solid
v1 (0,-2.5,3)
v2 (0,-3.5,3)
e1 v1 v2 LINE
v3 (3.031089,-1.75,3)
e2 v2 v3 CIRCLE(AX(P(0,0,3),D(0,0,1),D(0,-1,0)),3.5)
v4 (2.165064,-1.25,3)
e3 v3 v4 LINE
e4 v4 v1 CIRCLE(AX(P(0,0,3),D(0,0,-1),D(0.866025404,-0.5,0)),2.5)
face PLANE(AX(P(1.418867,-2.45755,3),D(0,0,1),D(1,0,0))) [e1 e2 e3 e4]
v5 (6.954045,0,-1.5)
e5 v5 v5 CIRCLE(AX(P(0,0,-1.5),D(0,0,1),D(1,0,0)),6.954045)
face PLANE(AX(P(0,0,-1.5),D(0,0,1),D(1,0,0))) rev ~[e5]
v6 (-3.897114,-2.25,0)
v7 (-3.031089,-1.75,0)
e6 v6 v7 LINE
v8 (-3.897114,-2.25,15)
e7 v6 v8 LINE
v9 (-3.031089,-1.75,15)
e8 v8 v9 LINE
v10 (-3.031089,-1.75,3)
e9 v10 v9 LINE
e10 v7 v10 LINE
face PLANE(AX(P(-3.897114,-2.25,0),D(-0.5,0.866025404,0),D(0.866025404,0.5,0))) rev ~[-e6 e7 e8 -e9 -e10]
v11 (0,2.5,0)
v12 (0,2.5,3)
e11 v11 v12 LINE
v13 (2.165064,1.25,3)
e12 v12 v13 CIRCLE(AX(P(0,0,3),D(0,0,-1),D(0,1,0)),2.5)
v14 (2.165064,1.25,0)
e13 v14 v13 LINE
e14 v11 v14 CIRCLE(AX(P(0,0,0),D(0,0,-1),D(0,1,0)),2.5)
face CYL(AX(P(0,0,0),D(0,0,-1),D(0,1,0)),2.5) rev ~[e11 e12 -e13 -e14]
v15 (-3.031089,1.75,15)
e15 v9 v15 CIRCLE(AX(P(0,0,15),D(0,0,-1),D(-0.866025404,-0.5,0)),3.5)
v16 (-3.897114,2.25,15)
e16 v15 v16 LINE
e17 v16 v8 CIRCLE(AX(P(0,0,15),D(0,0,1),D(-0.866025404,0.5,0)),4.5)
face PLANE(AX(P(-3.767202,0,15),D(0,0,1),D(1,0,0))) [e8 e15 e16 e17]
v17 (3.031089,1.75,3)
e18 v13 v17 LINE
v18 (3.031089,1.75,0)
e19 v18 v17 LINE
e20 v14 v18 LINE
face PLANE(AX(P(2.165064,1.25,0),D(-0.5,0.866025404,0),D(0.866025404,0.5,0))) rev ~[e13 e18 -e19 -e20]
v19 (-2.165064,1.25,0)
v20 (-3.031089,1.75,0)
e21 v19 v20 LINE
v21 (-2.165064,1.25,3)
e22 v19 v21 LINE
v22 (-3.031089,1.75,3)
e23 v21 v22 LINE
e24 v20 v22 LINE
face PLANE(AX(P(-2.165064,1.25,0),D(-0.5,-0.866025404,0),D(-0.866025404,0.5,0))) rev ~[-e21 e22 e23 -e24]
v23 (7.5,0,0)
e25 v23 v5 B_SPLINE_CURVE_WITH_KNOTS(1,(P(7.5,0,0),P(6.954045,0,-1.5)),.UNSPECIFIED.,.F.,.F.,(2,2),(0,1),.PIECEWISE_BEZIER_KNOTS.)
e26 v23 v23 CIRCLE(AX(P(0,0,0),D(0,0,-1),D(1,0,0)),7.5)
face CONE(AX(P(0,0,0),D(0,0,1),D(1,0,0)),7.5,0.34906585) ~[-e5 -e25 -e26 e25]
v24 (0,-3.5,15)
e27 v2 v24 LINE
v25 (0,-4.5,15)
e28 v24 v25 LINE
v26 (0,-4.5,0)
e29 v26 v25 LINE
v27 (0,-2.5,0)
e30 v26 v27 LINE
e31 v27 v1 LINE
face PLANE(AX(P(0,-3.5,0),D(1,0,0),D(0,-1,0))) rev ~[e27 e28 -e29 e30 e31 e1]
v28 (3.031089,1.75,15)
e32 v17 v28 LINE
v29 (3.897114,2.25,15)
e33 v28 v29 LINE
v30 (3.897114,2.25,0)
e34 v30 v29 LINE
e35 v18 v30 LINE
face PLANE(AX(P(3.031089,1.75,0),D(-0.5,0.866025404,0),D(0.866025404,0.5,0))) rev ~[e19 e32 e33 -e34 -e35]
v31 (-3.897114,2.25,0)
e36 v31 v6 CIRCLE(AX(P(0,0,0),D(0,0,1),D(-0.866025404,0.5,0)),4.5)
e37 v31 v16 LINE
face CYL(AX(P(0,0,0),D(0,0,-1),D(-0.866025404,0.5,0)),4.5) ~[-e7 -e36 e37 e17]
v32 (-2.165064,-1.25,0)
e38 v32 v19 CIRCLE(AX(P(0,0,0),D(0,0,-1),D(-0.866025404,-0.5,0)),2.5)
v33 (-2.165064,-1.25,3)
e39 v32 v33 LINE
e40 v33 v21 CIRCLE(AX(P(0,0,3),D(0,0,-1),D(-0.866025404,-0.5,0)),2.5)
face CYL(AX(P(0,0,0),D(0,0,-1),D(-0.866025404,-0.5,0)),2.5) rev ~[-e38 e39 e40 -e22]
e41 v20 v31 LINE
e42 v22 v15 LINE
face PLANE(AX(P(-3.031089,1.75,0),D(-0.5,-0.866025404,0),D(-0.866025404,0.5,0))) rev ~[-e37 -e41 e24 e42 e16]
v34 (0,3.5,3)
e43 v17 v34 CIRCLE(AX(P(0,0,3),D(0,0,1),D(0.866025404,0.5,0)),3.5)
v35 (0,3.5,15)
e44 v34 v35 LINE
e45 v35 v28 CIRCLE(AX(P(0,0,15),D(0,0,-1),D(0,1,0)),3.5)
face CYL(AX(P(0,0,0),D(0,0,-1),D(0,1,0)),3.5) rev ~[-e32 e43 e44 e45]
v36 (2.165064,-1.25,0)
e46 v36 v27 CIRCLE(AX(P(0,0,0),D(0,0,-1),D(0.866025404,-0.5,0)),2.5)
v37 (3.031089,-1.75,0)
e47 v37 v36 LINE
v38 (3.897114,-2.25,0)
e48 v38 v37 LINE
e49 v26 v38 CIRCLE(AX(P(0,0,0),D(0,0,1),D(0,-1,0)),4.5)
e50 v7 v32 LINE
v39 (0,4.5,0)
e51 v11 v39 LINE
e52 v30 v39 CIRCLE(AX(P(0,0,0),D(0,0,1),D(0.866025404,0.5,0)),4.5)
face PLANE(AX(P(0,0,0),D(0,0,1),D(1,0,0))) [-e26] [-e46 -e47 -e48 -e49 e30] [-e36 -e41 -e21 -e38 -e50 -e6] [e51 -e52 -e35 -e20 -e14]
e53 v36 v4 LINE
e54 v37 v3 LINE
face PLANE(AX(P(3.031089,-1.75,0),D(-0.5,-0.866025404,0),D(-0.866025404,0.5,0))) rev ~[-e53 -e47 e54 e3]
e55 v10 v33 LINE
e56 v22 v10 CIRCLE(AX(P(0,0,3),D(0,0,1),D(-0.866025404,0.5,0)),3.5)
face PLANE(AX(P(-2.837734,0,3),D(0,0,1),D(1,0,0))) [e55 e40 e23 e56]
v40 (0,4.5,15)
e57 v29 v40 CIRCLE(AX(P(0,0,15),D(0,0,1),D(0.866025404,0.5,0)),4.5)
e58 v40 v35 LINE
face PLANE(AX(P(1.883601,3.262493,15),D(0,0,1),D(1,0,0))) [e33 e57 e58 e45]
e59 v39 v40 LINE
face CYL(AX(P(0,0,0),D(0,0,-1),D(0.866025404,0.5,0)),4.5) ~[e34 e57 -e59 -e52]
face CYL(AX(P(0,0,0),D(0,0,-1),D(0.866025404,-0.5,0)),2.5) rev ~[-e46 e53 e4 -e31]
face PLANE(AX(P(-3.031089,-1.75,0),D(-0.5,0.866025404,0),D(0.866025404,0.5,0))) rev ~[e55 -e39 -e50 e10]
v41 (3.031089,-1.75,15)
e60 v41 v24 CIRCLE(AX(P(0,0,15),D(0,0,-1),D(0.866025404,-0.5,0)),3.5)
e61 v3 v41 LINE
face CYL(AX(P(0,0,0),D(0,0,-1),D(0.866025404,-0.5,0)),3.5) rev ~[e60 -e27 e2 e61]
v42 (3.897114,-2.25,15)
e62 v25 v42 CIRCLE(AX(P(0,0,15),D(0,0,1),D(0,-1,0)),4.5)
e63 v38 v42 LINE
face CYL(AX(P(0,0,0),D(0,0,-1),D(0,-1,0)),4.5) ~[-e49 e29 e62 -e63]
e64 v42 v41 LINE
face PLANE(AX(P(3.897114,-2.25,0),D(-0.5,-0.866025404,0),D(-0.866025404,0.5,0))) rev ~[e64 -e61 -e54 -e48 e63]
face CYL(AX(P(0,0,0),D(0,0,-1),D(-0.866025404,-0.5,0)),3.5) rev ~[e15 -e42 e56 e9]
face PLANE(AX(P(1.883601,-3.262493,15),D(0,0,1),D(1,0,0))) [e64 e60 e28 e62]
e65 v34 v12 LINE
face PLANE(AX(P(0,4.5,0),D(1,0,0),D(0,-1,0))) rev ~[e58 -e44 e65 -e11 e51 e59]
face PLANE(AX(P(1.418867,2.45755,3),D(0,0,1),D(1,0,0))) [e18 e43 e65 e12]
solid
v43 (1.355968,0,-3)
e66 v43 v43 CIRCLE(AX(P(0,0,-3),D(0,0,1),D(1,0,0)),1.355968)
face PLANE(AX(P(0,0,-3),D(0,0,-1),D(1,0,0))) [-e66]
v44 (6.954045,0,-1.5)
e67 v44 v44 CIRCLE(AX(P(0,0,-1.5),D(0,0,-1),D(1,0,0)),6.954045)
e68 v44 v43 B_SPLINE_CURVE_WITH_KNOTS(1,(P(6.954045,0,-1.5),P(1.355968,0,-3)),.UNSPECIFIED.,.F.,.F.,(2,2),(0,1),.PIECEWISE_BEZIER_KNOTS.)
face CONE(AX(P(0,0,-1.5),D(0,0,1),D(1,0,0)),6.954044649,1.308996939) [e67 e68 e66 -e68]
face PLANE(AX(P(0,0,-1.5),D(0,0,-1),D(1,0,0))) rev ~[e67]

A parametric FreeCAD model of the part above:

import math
import FreeCAD as App
import Part
import Sketcher
from FreeCAD import Vector
Q = App.Units.Quantity

doc = App.newDocument("Part")
body = doc.addObject("PartDesign::Body", "Body")

# Sketch on XY plane
sketch1 = body.newObject("Sketcher::SketchObject", "Sketch")
sketch1.AttachmentSupport = (doc.getObject("XY_Plane"), [""])
sketch1.MapMode = "FlatFace"
sketch1.addGeometry(Part.Circle(Vector(0, 0, 0), Vector(0, 0, 1), 8), False)
sketch1.addConstraint([
    Sketcher.Constraint("Coincident", 0, 3, -1, 1),
    Sketcher.Constraint("Diameter", 0, Q("15 mm")),
])
pad1 = body.newObject("PartDesign::Pad", "Pad")
pad1.Profile = sketch1
pad1.Length = 1.5
pad1.Reversed = True
pad1.TaperAngle = -20

# Sketch on XY plane
sketch2 = body.newObject("Sketcher::SketchObject", "Sketch001")
sketch2.AttachmentSupport = (doc.getObject("XY_Plane"), [""])
sketch2.MapMode = "FlatFace"
sketch2.addGeometry([
    Part.LineSegment(Vector(2.2, 1.2, 0), Vector(3, 1.8, 0)),  # 0
    Part.ArcOfCircle(Part.Circle(Vector(0, 0, 0), Vector(0, 0, 1), 3.5), math.radians(30), math.radians(90)),  # 1
    Part.LineSegment(Vector(0, 3.5, 0), Vector(0, 2.5, 0)),  # 2
    Part.ArcOfCircle(Part.Circle(Vector(0, 0, 0), Vector(0, 0, 1), 2.5), math.radians(30), math.radians(90)),  # 3
    Part.ArcOfCircle(Part.Circle(Vector(0, 0, 0), Vector(0, 0, 1), 3.5), math.radians(-90), math.radians(-30)),  # 4
    Part.LineSegment(Vector(3, -1.8, 0), Vector(2.2, -1.2, 0)),  # 5
    Part.ArcOfCircle(Part.Circle(Vector(0, 0, 0), Vector(0, 0, 1), 2.5), math.radians(-90), math.radians(-30)),  # 6
    Part.LineSegment(Vector(0, -2.5, 0), Vector(0, -3.5, 0)),  # 7
    Part.LineSegment(Vector(-2.2, 1.2, 0), Vector(-3, 1.8, 0)),  # 8
    Part.ArcOfCircle(Part.Circle(Vector(0, 0, 0), Vector(0, 0, 1), 3.5), math.radians(150), math.radians(210)),  # 9
    Part.LineSegment(Vector(-3, -1.8, 0), Vector(-2.2, -1.2, 0)),  # 10
    Part.ArcOfCircle(Part.Circle(Vector(0, 0, 0), Vector(0, 0, 1), 2.5), math.radians(150), math.radians(210)),  # 11
], False)
sketch2.addConstraint([
    Sketcher.Constraint("Coincident", 0, 2, 1, 1),
    Sketcher.Constraint("Coincident", 1, 2, 2, 1),
    Sketcher.Constraint("Coincident", 2, 2, 3, 2),
    Sketcher.Constraint("Coincident", 3, 1, 0, 1),
    Sketcher.Constraint("Coincident", 4, 2, 5, 1),
    Sketcher.Constraint("Coincident", 5, 2, 6, 2),
    Sketcher.Constraint("Coincident", 6, 1, 7, 1),
    Sketcher.Constraint("Coincident", 7, 2, 4, 1),
    Sketcher.Constraint("Coincident", 8, 2, 9, 1),
    Sketcher.Constraint("Coincident", 9, 2, 10, 1),
    Sketcher.Constraint("Coincident", 10, 2, 11, 2),
    Sketcher.Constraint("Coincident", 11, 1, 8, 1),
    Sketcher.Constraint("Vertical", 2),
    Sketcher.Constraint("Vertical", 7),
    Sketcher.Constraint("Coincident", 1, 3, -1, 1),
    Sketcher.Constraint("Coincident", 3, 3, -1, 1),
    Sketcher.Constraint("Coincident", 4, 3, -1, 1),
    Sketcher.Constraint("Coincident", 6, 3, -1, 1),
    Sketcher.Constraint("Coincident", 9, 3, -1, 1),
    Sketcher.Constraint("Coincident", 11, 3, -1, 1),
    Sketcher.Constraint("Equal", 1, 4),
    Sketcher.Constraint("Equal", 3, 6),
    Sketcher.Constraint("Equal", 4, 9),
    Sketcher.Constraint("Equal", 6, 11),
    Sketcher.Constraint("PointOnObject", 1, 2, -2),
    Sketcher.Constraint("PointOnObject", 6, 1, -2),
    Sketcher.Constraint("Parallel", 5, 8),
    Sketcher.Constraint("Parallel", 0, 10),
    Sketcher.Constraint("Horizontal", 0, 2, 8, 2),
    Sketcher.Constraint("Horizontal", 4, 2, 9, 2),
    Sketcher.Constraint("Horizontal", 5, 2, 10, 2),
    Sketcher.Constraint("Vertical", 0, 2, 4, 2),
    Sketcher.Constraint("Radius", 1, Q("3.5 mm")),
    Sketcher.Constraint("Radius", 3, Q("2.5 mm")),
    Sketcher.Constraint("Angle", 0, Q("30 deg")),
    Sketcher.Constraint("DistanceY", 4, 2, 3, 1, Q("3 mm")),
])
pad2 = body.newObject("PartDesign::Pad", "Pad001")
pad2.Profile = sketch2
pad2.Length = 3

# Sketch on XY plane
sketch3 = body.newObject("Sketcher::SketchObject", "Sketch002")
sketch3.AttachmentSupport = (doc.getObject("XY_Plane"), [""])
sketch3.MapMode = "FlatFace"
sketch3.addGeometry([
    Part.ArcOfCircle(Part.Circle(Vector(0, 0, 0), Vector(0, 0, 1), 3.5), math.radians(150), math.radians(210)),  # 0
    Part.LineSegment(Vector(-3, 1.8, 0), Vector(-3.9, 2.2, 0)),  # 1
    Part.ArcOfCircle(Part.Circle(Vector(0, 0, 0), Vector(0, 0, 1), 4.5), math.radians(150), math.radians(210)),  # 2
    Part.LineSegment(Vector(-3.9, -2.2, 0), Vector(-3, -1.8, 0)),  # 3
    Part.LineSegment(Vector(3.9, -2.2, 0), Vector(3, -1.8, 0)),  # 4
    Part.ArcOfCircle(Part.Circle(Vector(0, 0, 0), Vector(0, 0, 1), 3.5), math.radians(-90), math.radians(-30)),  # 5
    Part.LineSegment(Vector(0, -3.5, 0), Vector(0, -4.5, 0)),  # 6
    Part.ArcOfCircle(Part.Circle(Vector(0, 0, 0), Vector(0, 0, 1), 4.5), math.radians(-90), math.radians(-30)),  # 7
    Part.ArcOfCircle(Part.Circle(Vector(0, 0, 0), Vector(0, 0, 1), 3.5), math.radians(30), math.radians(90)),  # 8
    Part.LineSegment(Vector(3, 1.8, 0), Vector(3.9, 2.2, 0)),  # 9
    Part.ArcOfCircle(Part.Circle(Vector(0, 0, 0), Vector(0, 0, 1), 4.5), math.radians(30), math.radians(90)),  # 10
    Part.LineSegment(Vector(0, 4.5, 0), Vector(0, 3.5, 0)),  # 11
], False)
sketch3.addConstraint([
    Sketcher.Constraint("Coincident", 0, 1, 1, 1),
    Sketcher.Constraint("Coincident", 1, 2, 2, 1),
    Sketcher.Constraint("Coincident", 2, 2, 3, 1),
    Sketcher.Constraint("Coincident", 3, 2, 0, 2),
    Sketcher.Constraint("Coincident", 4, 2, 5, 2),
    Sketcher.Constraint("Coincident", 5, 1, 6, 1),
    Sketcher.Constraint("Coincident", 6, 2, 7, 1),
    Sketcher.Constraint("Coincident", 7, 2, 4, 1),
    Sketcher.Constraint("Coincident", 8, 1, 9, 1),
    Sketcher.Constraint("Coincident", 9, 2, 10, 1),
    Sketcher.Constraint("Coincident", 10, 2, 11, 1),
    Sketcher.Constraint("Coincident", 11, 2, 8, 2),
    Sketcher.Constraint("Vertical", 6),
    Sketcher.Constraint("Vertical", 11),
    Sketcher.Constraint("Coincident", 0, 3, -1, 1),
    Sketcher.Constraint("Coincident", 2, 3, -1, 1),
    Sketcher.Constraint("Coincident", 5, 3, -1, 1),
    Sketcher.Constraint("Coincident", 7, 3, -1, 1),
    Sketcher.Constraint("Coincident", 8, 3, -1, 1),
    Sketcher.Constraint("Coincident", 10, 3, -1, 1),
    Sketcher.Constraint("Equal", 0, 5),
    Sketcher.Constraint("Equal", 2, 7),
    Sketcher.Constraint("Equal", 5, 8),
    Sketcher.Constraint("Equal", 7, 10),
    Sketcher.Constraint("PointOnObject", 5, 1, -2),
    Sketcher.Constraint("PointOnObject", 10, 2, -2),
    Sketcher.Constraint("Parallel", 1, 4),
    Sketcher.Constraint("Parallel", 3, 9),
    Sketcher.Constraint("Horizontal", 3, 2, 4, 2),
    Sketcher.Constraint("Horizontal", 2, 2, 7, 2),
    Sketcher.Constraint("Horizontal", 0, 1, 8, 1),
    Sketcher.Constraint("Vertical", 1, 2, 2, 2),
    Sketcher.Constraint("Radius", 0, Q("3.5 mm")),
    Sketcher.Constraint("Radius", 2, Q("4.5 mm")),
    Sketcher.Constraint("Angle", 1, Q("150 deg")),
    Sketcher.Constraint("DistanceY", 2, 2, 0, 1, Q("4 mm")),
])
pad3 = body.newObject("PartDesign::Pad", "Pad002")
pad3.Profile = sketch3
pad3.Length = 15
body2 = doc.addObject("PartDesign::Body", "Body001")

# Sketch on XY plane
sketch4 = body2.newObject("Sketcher::SketchObject", "Sketch003")
sketch4.AttachmentSupport = (doc.getObject("XY_Plane001"), [""])
sketch4.MapMode = "FlatFace"
sketch4.AttachmentOffset = App.Placement(Vector(0, 0, -1.5), App.Rotation())
sketch4.addGeometry(Part.Circle(Vector(0, 0, 0), Vector(0, 0, 1), 7), False)
sketch4.addConstraint([
    Sketcher.Constraint("Coincident", 0, 3, -1, 1),
    Sketcher.Constraint("Diameter", 0, Q("13.908089 mm")),
])
pad4 = body2.newObject("PartDesign::Pad", "Pad003")
pad4.Profile = sketch4
pad4.Length = 1.5
pad4.Reversed = True
pad4.TaperAngle = -75

doc.recompute()
